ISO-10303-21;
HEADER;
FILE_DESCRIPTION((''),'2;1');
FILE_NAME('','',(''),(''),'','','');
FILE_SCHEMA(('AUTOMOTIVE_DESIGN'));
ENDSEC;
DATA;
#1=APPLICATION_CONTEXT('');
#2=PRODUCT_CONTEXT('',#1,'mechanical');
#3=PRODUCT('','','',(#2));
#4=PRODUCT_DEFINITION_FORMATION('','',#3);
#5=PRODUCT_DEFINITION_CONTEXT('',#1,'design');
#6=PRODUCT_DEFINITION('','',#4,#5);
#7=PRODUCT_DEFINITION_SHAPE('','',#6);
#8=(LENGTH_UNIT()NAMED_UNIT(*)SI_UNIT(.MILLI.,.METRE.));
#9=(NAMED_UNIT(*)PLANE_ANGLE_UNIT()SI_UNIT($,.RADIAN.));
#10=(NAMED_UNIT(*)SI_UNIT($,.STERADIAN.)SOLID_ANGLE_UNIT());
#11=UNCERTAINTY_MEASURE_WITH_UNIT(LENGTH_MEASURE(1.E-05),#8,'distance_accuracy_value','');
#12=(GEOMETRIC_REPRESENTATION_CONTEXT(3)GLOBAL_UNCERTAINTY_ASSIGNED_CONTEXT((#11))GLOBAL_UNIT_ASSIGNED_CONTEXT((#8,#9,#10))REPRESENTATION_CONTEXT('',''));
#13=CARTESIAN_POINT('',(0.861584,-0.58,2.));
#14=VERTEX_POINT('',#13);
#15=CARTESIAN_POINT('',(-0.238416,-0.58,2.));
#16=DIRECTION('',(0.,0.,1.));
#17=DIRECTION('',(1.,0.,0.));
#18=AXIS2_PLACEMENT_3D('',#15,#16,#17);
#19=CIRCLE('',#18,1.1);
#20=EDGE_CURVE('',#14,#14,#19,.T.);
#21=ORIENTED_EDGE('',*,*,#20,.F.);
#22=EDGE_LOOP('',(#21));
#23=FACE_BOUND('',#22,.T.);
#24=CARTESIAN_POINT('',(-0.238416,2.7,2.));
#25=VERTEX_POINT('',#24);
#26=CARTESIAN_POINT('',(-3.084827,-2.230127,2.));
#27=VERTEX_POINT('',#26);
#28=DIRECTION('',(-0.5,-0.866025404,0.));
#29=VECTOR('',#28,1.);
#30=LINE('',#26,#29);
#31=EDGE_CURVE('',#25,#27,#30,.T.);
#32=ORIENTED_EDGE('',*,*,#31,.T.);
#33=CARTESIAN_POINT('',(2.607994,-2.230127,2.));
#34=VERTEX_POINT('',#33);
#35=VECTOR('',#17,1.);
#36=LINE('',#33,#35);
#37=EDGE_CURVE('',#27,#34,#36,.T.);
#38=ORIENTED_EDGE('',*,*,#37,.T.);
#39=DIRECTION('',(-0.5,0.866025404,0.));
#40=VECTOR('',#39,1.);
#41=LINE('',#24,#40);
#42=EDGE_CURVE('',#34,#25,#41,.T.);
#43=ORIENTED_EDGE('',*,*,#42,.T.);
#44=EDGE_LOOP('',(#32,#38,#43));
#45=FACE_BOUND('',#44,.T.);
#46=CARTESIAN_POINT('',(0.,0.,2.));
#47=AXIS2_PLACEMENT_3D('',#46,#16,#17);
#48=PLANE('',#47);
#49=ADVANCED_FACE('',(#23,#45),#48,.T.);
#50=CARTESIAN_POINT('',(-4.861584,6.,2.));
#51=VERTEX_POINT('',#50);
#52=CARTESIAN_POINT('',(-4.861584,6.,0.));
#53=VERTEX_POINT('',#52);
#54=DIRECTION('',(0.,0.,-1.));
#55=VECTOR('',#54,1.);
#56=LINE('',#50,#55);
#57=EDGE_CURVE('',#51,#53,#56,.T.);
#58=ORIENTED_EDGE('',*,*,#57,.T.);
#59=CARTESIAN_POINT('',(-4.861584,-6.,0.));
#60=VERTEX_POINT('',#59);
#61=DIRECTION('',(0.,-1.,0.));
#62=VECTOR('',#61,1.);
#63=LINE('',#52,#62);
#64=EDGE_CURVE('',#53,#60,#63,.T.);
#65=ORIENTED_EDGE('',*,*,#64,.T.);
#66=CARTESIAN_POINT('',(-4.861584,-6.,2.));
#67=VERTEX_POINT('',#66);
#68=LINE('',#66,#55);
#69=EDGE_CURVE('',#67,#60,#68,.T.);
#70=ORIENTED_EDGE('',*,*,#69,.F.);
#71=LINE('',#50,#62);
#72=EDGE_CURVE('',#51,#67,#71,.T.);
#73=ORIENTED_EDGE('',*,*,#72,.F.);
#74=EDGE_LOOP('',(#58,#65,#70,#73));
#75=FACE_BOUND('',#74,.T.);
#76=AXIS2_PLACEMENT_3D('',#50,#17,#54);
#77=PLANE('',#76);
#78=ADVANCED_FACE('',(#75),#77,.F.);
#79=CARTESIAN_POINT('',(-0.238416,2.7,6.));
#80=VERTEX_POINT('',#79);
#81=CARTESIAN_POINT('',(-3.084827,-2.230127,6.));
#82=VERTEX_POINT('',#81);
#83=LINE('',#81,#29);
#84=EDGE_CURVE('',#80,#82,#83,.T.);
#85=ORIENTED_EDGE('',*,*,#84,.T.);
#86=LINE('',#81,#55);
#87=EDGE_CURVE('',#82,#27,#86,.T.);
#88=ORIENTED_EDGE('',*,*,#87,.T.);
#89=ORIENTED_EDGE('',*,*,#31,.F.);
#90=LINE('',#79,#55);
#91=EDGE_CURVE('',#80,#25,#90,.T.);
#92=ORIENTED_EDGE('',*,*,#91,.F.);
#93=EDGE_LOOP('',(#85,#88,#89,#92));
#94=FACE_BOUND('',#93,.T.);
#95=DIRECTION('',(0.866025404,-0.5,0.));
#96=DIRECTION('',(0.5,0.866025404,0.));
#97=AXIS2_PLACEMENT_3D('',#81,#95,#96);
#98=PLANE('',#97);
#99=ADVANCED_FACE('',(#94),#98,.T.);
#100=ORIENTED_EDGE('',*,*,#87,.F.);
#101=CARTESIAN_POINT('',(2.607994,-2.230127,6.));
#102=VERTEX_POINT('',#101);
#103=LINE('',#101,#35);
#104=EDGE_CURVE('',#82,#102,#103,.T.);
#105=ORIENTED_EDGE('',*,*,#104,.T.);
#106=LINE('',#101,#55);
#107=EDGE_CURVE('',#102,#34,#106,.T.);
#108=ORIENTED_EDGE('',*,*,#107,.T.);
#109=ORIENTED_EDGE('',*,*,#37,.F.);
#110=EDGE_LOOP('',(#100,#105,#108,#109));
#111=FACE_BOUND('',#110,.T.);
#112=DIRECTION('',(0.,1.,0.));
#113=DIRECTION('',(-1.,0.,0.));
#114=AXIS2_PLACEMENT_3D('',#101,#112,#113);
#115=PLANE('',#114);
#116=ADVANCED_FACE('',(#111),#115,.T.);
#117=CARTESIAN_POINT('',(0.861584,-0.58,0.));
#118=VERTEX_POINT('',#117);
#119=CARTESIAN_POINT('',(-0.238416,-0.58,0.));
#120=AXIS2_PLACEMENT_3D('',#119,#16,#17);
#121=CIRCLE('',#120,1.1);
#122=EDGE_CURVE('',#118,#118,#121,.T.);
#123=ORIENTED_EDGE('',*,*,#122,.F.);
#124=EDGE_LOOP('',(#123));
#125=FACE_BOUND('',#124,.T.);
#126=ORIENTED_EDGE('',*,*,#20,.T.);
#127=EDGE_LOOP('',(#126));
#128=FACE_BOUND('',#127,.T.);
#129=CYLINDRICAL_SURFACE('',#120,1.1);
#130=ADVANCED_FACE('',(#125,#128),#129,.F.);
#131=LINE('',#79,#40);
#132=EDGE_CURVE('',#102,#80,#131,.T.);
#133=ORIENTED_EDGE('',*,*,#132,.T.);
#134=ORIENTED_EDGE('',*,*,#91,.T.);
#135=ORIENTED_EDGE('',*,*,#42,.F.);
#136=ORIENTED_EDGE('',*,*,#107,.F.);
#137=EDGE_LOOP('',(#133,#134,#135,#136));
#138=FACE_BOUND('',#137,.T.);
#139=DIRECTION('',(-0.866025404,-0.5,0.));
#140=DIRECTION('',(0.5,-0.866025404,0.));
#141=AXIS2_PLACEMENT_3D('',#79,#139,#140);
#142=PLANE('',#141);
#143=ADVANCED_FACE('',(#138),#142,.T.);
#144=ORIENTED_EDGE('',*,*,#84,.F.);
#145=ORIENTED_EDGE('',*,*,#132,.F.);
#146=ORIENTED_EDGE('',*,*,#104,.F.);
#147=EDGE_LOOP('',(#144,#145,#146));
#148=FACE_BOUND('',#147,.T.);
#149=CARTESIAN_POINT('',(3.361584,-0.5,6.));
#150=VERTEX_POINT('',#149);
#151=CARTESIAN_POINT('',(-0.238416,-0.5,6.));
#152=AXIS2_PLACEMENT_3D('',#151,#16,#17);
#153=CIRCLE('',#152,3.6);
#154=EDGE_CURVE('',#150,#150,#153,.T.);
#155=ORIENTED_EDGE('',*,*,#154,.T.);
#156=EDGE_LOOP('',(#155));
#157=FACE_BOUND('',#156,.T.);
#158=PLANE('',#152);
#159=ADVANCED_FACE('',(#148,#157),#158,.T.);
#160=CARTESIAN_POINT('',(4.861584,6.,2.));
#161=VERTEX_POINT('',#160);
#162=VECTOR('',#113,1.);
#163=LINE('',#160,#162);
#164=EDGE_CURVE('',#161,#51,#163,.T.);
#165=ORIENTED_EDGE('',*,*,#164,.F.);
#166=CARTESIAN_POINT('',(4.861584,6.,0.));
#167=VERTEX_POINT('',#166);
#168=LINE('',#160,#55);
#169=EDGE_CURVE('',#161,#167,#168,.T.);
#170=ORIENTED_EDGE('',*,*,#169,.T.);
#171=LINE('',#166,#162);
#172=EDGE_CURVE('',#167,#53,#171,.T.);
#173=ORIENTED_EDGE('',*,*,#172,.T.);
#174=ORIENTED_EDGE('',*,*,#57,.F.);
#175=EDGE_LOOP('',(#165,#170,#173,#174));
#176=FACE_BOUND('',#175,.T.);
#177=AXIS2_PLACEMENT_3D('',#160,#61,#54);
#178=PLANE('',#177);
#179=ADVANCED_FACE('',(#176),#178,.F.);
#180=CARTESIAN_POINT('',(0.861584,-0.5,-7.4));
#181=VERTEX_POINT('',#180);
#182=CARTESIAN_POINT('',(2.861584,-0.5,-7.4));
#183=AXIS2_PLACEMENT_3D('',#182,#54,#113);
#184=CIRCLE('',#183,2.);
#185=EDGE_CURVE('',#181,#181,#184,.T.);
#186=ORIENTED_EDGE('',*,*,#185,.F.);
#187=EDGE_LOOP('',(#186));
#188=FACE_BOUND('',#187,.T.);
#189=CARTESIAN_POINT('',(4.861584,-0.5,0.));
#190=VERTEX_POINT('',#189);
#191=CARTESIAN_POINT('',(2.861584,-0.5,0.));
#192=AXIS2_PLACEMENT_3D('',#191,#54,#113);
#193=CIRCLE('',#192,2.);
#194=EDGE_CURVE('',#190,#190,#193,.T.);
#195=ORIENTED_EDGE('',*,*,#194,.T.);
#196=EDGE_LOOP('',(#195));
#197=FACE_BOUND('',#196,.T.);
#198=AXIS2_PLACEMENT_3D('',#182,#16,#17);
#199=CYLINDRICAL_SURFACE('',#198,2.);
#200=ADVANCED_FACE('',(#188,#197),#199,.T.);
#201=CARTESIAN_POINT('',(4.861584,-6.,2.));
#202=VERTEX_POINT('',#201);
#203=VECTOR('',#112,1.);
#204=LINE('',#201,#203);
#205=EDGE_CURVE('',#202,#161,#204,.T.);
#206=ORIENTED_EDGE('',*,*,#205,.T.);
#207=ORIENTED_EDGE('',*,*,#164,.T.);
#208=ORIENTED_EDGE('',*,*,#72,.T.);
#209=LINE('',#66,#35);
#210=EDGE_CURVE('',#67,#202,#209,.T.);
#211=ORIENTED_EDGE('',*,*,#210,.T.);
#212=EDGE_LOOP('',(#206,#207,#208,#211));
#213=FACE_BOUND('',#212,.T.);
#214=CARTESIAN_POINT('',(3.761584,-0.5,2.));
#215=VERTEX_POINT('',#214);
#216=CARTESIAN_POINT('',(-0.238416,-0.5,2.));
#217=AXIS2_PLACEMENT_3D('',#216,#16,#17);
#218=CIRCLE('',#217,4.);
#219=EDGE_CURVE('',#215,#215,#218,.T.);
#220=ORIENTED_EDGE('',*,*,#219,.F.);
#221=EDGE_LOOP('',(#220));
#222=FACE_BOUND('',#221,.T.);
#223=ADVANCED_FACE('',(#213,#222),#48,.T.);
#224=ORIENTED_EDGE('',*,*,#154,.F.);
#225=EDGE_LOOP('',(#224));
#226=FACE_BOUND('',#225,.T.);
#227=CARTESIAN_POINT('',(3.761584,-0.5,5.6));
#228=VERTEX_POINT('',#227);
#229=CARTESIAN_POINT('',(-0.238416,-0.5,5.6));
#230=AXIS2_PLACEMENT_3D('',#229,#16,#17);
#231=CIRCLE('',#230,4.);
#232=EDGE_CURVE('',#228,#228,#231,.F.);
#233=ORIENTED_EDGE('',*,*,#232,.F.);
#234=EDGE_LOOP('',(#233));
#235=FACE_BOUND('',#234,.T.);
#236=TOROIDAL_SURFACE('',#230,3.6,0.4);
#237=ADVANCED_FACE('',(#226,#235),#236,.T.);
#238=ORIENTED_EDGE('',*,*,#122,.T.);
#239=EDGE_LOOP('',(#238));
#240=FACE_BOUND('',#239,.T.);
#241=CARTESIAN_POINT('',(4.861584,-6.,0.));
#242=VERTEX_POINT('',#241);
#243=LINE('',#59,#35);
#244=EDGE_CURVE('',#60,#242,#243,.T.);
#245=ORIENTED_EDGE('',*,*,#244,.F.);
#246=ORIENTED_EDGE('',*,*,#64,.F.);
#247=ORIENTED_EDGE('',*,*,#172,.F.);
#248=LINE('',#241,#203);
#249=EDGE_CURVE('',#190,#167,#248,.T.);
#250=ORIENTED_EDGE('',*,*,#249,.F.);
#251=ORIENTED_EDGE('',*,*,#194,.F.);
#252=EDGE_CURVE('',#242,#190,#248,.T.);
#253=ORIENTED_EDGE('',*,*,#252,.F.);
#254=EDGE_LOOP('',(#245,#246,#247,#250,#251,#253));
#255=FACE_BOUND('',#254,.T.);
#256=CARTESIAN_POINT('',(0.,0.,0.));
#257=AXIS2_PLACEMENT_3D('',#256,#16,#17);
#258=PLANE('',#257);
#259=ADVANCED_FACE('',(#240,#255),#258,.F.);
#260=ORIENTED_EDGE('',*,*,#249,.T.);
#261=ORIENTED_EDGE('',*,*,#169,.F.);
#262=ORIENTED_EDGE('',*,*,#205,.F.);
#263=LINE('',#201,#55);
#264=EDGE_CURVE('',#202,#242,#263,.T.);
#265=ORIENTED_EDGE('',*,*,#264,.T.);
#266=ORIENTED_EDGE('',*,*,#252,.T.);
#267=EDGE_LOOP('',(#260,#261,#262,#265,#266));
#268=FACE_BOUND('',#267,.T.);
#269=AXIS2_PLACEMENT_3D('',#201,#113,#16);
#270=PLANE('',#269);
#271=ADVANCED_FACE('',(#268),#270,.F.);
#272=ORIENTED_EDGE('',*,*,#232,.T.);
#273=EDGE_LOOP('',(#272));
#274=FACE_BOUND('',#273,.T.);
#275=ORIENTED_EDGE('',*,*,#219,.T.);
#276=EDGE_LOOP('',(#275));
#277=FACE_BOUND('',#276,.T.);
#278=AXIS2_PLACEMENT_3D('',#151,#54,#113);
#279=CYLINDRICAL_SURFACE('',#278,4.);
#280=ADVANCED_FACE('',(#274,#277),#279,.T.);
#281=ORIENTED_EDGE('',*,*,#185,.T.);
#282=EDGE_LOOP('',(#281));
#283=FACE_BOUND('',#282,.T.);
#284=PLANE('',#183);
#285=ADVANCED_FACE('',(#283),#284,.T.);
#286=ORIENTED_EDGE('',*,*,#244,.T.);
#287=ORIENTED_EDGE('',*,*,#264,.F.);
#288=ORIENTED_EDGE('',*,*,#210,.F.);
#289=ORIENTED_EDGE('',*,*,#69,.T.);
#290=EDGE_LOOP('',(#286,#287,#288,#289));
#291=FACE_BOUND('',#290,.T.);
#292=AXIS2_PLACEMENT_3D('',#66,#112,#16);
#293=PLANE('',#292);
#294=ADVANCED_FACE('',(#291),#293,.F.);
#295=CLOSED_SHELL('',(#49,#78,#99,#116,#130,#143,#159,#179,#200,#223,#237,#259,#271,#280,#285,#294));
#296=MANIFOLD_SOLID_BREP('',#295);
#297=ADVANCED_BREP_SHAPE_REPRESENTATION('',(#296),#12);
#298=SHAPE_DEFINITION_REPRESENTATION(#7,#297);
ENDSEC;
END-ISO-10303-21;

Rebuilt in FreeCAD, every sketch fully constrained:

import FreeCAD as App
import Part
import Sketcher
Q = App.Units.Quantity


def edges_at(feature, points):
    """Names of the edges that pass closest to the given points."""
    edges = feature.Shape.Edges
    near = lambda p: min(range(len(edges)), key=lambda i: edges[i].distToShape(Part.Vertex(*p))[0])
    return sorted({f"Edge{near(p) + 1}" for p in points})

doc = App.newDocument("Part")
body = doc.addObject("PartDesign::Body", "Body")

# Sketch on XY plane
sketch1 = doc.addObject("Sketcher::SketchObject", "Sketch")
body.addObject(sketch1)
sketch1.AttachmentSupport = (doc.XY_Plane, [""])
sketch1.MapMode = "FlatFace"
sketch1.addGeometry(Part.LineSegment(App.Vector(-5, 6, 0), App.Vector(-5, -6, 0)), False)
sketch1.addGeometry(Part.LineSegment(App.Vector(-5, -6, 0), App.Vector(5, -6, 0)), False)
sketch1.addGeometry(Part.LineSegment(App.Vector(5, -6, 0), App.Vector(5, 6, 0)), False)
sketch1.addGeometry(Part.LineSegment(App.Vector(5, 6, 0), App.Vector(-5, 6, 0)), False)
sketch1.addConstraint(Sketcher.Constraint("Coincident", 0, 2, 1, 1))
sketch1.addConstraint(Sketcher.Constraint("Coincident", 1, 2, 2, 1))
sketch1.addConstraint(Sketcher.Constraint("Coincident", 2, 2, 3, 1))
sketch1.addConstraint(Sketcher.Constraint("Coincident", 3, 2, 0, 1))
sketch1.addConstraint(Sketcher.Constraint("Vertical", 0))
sketch1.addConstraint(Sketcher.Constraint("Horizontal", 1))
sketch1.addConstraint(Sketcher.Constraint("Vertical", 2))
sketch1.addConstraint(Sketcher.Constraint("Horizontal", 3))
sketch1.addConstraint(Sketcher.Constraint("Symmetric", 0, 2, 2, 2, -1, 1))
sketch1.addConstraint(Sketcher.Constraint("DistanceY", 0, 2, 0, 1, Q("12 mm")))
sketch1.addConstraint(Sketcher.Constraint("DistanceX", 1, 1, 1, 2, Q("9.723167 mm")))
pad1 = doc.addObject("PartDesign::Pad", "Pad")
body.addObject(pad1)
pad1.Profile = sketch1
pad1.Length = 2

# Sketch on XY plane
sketch2 = doc.addObject("Sketcher::SketchObject", "Sketch001")
body.addObject(sketch2)
sketch2.AttachmentSupport = (doc.XY_Plane, [""])
sketch2.MapMode = "FlatFace"
sketch2.AttachmentOffset = App.Placement(App.Vector(0, 0, 2), App.Rotation())
sketch2.addGeometry(Part.Circle(App.Vector(-0.2, -0.5, 0), App.Vector(0, 0, 1), 4), False)
sketch2.addGeometry(Part.LineSegment(App.Vector(2.6, -2.2, 0), App.Vector(-3.1, -2.2, 0)), False)
sketch2.addGeometry(Part.LineSegment(App.Vector(-3.1, -2.2, 0), App.Vector(-0.2, 2.7, 0)), False)
sketch2.addGeometry(Part.LineSegment(App.Vector(-0.2, 2.7, 0), App.Vector(2.6, -2.2, 0)), False)
sketch2.addConstraint(Sketcher.Constraint("Coincident", 1, 2, 2, 1))
sketch2.addConstraint(Sketcher.Constraint("Coincident", 2, 2, 3, 1))
sketch2.addConstraint(Sketcher.Constraint("Coincident", 3, 2, 1, 1))
sketch2.addConstraint(Sketcher.Constraint("Horizontal", 1))
sketch2.addConstraint(Sketcher.Constraint("Vertical", 0, 3, 2, 2))
sketch2.addConstraint(Sketcher.Constraint("Equal", 2, 3))
sketch2.addConstraint(Sketcher.Constraint("Diameter", 0, Q("8 mm")))
sketch2.addConstraint(Sketcher.Constraint("Angle", 2, Q("60 deg")))
sketch2.addConstraint(Sketcher.Constraint("DistanceY", 0, 3, -1, 1, Q("0.5 mm")))
sketch2.addConstraint(Sketcher.Constraint("DistanceY", -1, 1, 2, 2, Q("2.7 mm")))
sketch2.addConstraint(Sketcher.Constraint("DistanceX", 1, 2, 1, 1, Q("5.69282 mm")))
sketch2.addConstraint(Sketcher.Constraint("DistanceX", 0, 3, -1, 1, Q("0.238416 mm")))
pad2 = doc.addObject("PartDesign::Pad", "Pad001")
body.addObject(pad2)
pad2.Profile = sketch2
pad2.Length = 4

# Sketch on XY plane
sketch3 = doc.addObject("Sketcher::SketchObject", "Sketch002")
body.addObject(sketch3)
sketch3.AttachmentSupport = (doc.XY_Plane, [""])
sketch3.MapMode = "FlatFace"
sketch3.addGeometry(Part.Circle(App.Vector(2.9, -0.5, 0), App.Vector(0, 0, 1), 2), False)
sketch3.addConstraint(Sketcher.Constraint("Diameter", 0, Q("4 mm")))
sketch3.addConstraint(Sketcher.Constraint("DistanceY", 0, 3, -1, 1, Q("0.5 mm")))
sketch3.addConstraint(Sketcher.Constraint("DistanceX", -1, 1, 0, 3, Q("2.861584 mm")))
pad3 = doc.addObject("PartDesign::Pad", "Pad002")
body.addObject(pad3)
pad3.Profile = sketch3
pad3.Length = 7.4
pad3.Reversed = True
doc.recompute()

fillet = doc.addObject("PartDesign::Fillet", "Fillet")
body.addObject(fillet)
fillet.Base = (pad3, edges_at(pad3, [(-4.238, -0.5, 6)]))
fillet.Radius = 0.4

# Sketch on XY plane
sketch4 = doc.addObject("Sketcher::SketchObject", "Sketch003")
body.addObject(sketch4)
sketch4.AttachmentSupport = (doc.XY_Plane, [""])
sketch4.MapMode = "FlatFace"
sketch4.AttachmentOffset = App.Placement(App.Vector(0, 0, 2), App.Rotation())
sketch4.addGeometry(Part.Circle(App.Vector(-0.2, -0.6, 0), App.Vector(0, 0, 1), 1.1), False)
sketch4.addConstraint(Sketcher.Constraint("Diameter", 0, Q("2.2 mm")))
sketch4.addConstraint(Sketcher.Constraint("DistanceY", 0, 3, -1, 1, Q("0.58 mm")))
sketch4.addConstraint(Sketcher.Constraint("DistanceX", 0, 3, -1, 1, Q("0.238416 mm")))
pocket1 = doc.addObject("PartDesign::Pocket", "Pocket")
body.addObject(pocket1)
pocket1.Profile = sketch4
pocket1.Length = 2

doc.recompute()
